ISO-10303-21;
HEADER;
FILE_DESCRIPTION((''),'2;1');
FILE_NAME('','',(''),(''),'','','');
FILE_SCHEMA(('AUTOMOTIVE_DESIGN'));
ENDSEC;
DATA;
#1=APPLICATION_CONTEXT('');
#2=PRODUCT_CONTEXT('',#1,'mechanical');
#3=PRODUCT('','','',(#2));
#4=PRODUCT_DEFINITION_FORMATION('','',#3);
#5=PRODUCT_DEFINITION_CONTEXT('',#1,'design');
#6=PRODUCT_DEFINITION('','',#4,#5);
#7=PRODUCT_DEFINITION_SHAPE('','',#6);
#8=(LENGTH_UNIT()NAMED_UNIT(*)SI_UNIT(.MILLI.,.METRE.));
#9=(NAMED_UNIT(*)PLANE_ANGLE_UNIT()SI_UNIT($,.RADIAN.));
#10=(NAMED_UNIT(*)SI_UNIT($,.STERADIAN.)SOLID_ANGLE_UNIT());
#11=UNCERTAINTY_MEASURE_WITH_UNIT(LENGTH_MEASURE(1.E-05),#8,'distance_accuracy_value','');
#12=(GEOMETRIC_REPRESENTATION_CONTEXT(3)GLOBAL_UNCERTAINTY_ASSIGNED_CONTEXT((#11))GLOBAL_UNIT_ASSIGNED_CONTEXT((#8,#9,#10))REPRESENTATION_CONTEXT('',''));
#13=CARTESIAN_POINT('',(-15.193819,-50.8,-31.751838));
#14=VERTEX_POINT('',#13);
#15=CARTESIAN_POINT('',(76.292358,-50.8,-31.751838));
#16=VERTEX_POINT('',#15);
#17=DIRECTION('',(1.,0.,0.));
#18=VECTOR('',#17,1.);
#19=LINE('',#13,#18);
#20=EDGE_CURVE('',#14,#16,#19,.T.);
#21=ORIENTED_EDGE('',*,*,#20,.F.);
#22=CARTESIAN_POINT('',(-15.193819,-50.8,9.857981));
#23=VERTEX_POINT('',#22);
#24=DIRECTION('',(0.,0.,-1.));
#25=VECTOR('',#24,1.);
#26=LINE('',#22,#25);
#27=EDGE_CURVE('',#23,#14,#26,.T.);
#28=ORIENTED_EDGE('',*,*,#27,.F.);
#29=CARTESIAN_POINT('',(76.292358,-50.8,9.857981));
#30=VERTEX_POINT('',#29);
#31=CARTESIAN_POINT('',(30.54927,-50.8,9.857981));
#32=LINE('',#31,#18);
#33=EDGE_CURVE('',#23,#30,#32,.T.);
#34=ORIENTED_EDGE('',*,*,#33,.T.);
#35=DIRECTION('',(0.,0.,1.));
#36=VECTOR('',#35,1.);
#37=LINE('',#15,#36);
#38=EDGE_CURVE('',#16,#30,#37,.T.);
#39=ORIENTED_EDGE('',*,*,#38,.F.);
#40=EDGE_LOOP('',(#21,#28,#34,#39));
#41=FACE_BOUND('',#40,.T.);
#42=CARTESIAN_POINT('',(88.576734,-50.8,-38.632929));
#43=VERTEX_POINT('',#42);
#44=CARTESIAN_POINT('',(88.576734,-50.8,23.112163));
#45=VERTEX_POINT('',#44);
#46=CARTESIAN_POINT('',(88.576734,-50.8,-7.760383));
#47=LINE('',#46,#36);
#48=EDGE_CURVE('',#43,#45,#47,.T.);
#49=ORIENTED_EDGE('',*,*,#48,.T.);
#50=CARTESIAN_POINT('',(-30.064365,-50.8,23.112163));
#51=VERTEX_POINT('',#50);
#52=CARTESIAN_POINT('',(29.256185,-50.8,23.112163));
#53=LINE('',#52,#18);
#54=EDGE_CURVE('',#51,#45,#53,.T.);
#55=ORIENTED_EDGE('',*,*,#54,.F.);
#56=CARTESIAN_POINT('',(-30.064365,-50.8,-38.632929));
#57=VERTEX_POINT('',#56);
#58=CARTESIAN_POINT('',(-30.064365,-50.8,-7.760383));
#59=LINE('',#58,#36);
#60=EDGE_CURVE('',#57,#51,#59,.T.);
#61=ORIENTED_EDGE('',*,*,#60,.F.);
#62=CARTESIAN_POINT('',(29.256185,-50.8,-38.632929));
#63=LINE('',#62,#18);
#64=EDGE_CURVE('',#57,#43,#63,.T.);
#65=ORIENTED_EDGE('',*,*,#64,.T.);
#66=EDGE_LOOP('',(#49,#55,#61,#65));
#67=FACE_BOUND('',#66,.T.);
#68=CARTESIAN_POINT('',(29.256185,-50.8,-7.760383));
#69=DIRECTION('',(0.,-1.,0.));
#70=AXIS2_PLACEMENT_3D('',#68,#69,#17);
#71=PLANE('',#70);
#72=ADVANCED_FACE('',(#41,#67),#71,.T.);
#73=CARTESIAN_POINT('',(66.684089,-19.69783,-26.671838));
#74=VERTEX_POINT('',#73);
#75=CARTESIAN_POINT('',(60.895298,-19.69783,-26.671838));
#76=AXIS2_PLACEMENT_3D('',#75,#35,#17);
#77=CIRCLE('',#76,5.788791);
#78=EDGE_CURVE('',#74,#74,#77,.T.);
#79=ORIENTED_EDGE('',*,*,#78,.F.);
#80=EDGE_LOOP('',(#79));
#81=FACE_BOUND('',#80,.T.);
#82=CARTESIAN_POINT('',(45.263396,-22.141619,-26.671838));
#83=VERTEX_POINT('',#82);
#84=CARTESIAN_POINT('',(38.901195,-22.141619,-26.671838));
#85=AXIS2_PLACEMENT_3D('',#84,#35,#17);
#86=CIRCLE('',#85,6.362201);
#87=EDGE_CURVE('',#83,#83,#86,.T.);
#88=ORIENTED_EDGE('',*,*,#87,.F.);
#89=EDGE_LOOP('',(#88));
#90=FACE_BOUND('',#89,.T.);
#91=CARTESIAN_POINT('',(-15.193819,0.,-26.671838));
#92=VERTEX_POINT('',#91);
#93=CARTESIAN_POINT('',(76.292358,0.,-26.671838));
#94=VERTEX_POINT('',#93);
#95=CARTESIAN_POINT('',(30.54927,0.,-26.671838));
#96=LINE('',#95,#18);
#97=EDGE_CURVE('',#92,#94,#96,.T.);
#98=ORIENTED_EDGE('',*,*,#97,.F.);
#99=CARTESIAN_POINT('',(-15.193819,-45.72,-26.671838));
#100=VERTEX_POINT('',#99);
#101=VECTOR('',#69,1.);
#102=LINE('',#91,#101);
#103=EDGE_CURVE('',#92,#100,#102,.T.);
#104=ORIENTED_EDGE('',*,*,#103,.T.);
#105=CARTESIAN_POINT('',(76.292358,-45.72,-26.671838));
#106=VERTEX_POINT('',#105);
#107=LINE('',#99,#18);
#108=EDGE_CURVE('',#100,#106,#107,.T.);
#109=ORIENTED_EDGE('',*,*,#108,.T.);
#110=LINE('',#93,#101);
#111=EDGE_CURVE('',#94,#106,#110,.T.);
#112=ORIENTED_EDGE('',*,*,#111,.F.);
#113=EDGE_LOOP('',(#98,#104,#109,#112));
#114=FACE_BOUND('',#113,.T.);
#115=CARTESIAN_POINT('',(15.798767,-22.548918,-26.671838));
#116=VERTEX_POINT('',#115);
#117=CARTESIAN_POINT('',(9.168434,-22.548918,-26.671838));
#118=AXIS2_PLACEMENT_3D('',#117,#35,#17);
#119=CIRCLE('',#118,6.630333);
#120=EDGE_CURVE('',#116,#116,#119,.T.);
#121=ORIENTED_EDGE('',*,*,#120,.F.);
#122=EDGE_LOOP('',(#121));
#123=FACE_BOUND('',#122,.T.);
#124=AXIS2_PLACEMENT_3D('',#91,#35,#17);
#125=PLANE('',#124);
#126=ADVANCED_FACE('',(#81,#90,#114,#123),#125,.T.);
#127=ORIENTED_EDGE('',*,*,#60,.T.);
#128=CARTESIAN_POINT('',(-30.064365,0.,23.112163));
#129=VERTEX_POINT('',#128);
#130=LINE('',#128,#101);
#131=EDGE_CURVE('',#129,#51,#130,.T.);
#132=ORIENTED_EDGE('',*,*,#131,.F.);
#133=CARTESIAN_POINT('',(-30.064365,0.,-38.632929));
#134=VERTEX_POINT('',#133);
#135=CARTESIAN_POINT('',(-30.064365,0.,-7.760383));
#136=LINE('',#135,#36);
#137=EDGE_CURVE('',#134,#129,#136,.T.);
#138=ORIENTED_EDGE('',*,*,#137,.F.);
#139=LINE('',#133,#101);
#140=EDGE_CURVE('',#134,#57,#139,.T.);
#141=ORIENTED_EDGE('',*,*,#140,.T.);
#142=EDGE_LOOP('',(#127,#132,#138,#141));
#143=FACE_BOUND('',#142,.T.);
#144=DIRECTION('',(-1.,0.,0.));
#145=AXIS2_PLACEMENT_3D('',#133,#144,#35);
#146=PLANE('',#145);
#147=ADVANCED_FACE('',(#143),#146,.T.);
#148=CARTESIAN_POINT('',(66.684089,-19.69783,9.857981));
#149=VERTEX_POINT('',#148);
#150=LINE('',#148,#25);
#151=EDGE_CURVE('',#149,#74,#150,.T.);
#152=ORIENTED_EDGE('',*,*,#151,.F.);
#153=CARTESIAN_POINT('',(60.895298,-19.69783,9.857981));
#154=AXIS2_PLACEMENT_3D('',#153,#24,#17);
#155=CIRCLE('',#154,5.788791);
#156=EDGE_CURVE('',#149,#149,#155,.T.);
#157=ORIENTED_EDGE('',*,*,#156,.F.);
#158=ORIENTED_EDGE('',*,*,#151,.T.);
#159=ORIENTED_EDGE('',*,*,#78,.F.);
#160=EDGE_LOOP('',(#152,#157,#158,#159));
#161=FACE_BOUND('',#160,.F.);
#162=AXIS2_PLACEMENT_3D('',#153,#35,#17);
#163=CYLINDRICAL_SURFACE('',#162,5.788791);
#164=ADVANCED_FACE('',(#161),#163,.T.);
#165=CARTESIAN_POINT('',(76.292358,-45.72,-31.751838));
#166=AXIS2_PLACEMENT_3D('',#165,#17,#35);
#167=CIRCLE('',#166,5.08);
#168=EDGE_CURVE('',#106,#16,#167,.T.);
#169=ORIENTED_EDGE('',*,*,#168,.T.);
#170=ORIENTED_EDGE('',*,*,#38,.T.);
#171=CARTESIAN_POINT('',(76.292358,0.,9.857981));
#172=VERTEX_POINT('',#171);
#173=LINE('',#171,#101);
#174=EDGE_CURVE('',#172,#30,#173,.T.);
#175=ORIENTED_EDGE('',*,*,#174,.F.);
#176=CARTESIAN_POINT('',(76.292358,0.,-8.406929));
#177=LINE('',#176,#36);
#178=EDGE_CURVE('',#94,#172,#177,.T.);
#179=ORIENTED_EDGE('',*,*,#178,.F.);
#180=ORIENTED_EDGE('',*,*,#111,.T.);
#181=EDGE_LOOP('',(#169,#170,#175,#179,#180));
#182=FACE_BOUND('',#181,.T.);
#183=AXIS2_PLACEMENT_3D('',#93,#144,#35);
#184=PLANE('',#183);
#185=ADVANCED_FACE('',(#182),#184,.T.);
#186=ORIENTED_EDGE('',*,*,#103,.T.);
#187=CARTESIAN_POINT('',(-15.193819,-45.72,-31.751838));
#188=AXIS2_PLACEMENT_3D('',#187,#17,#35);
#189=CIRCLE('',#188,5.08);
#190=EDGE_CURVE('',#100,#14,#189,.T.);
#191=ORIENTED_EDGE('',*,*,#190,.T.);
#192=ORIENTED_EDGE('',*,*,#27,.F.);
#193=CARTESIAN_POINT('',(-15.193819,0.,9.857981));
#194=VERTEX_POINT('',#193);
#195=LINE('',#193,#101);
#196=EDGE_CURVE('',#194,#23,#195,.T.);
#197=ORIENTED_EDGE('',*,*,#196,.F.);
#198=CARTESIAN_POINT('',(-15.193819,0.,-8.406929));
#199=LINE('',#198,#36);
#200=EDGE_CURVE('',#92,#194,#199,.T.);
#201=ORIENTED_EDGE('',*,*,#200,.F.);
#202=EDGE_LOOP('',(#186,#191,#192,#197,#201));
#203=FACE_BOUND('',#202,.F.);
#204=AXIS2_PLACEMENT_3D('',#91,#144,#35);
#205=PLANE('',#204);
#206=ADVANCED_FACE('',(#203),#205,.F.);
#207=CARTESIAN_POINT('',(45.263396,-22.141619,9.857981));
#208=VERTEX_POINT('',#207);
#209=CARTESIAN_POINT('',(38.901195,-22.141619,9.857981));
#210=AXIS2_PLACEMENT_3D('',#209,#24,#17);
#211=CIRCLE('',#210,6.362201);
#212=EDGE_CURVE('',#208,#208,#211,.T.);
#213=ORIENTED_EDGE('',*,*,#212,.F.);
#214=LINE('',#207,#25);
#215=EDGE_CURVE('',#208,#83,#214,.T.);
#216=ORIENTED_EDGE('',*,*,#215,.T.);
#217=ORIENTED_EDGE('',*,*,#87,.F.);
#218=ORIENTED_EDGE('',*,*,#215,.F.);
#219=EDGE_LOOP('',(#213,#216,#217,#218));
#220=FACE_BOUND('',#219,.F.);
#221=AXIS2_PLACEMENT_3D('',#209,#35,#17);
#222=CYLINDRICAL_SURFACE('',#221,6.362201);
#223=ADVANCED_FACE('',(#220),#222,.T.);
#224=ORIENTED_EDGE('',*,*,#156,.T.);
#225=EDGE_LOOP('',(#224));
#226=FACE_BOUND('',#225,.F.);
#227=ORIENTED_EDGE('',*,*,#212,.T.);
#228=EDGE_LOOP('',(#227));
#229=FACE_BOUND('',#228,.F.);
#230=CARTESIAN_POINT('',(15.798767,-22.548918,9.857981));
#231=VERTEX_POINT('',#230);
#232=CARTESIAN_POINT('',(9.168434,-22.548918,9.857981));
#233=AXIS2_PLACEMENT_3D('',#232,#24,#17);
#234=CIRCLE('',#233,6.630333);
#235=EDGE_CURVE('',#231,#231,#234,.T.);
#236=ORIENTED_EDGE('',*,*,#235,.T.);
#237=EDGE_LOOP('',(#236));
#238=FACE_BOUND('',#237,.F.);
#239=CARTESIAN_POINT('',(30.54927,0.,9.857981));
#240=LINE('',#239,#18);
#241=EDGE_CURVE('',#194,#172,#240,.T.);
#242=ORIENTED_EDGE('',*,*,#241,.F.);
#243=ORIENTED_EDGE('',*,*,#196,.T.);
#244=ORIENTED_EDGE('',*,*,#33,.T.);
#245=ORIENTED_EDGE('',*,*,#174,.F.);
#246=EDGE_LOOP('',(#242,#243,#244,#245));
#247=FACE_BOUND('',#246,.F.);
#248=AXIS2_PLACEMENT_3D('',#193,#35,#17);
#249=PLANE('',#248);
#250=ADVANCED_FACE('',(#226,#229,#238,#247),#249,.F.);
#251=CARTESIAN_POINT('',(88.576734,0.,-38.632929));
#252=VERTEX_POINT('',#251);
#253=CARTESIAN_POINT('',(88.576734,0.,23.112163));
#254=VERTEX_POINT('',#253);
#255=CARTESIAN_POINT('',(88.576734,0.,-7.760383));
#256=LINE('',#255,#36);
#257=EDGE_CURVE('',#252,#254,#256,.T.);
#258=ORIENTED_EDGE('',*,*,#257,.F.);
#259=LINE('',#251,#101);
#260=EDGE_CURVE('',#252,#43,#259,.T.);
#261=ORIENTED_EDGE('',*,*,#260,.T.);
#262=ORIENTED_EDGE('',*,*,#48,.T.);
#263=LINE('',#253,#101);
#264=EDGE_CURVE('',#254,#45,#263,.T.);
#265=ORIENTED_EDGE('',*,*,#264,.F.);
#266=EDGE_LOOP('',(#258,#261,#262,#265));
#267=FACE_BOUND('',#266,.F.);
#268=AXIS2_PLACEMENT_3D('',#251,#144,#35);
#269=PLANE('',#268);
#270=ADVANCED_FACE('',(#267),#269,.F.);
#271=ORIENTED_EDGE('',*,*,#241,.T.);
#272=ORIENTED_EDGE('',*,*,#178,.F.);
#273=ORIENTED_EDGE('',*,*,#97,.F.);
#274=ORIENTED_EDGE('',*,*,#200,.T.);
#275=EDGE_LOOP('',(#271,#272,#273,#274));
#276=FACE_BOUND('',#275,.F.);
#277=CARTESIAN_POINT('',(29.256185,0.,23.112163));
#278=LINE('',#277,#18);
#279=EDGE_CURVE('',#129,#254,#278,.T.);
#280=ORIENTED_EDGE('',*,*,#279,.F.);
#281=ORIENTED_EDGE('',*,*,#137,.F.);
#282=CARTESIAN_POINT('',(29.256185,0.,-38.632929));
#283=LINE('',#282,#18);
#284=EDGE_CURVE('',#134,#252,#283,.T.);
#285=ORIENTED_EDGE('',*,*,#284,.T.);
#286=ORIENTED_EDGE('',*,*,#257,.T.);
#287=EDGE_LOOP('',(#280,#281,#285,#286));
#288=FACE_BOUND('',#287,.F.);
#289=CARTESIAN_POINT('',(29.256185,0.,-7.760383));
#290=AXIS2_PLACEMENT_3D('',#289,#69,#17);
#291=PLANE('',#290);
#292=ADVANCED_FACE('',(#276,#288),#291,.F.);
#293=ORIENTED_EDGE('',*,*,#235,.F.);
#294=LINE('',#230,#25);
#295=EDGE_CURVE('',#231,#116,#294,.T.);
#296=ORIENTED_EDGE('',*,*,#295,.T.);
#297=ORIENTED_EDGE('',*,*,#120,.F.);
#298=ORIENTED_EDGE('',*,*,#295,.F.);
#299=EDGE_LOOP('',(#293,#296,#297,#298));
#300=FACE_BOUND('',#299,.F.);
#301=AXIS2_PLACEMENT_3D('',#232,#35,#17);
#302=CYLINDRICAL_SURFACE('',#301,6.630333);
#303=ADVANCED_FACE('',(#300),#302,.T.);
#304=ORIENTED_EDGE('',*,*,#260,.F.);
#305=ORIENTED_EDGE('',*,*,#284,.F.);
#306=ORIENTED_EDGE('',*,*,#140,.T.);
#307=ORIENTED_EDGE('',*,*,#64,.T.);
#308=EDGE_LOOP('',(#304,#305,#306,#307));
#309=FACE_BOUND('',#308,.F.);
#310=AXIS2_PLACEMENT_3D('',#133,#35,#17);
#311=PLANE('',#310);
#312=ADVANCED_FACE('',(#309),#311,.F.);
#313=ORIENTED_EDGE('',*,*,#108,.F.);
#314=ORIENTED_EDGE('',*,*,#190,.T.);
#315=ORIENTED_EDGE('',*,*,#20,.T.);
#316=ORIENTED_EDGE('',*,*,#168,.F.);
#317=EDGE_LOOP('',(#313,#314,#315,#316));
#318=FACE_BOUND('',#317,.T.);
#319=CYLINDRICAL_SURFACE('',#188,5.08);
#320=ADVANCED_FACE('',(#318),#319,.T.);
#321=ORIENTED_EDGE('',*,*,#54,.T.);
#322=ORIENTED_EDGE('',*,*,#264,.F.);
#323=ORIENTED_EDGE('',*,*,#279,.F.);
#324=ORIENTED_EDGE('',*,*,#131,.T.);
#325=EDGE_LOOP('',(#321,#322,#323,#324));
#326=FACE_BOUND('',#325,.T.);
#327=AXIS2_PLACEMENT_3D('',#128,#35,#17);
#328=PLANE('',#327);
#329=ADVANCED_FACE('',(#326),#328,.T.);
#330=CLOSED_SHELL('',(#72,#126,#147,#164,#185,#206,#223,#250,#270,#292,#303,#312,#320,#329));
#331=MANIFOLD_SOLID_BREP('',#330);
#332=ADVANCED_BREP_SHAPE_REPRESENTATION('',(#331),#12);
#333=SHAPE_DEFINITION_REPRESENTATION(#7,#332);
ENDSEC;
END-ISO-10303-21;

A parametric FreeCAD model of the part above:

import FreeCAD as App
import Part
import Sketcher

V = App.Vector
Q = App.Units.Quantity


def edges_at(feature, points):
    """Names of the edges that pass closest to the given points."""
    edges = feature.Shape.Edges
    near = lambda p: min(range(len(edges)), key=lambda i: edges[i].distToShape(Part.Vertex(*p))[0])
    return sorted({f"Edge{near(p) + 1}" for p in points})

doc = App.newDocument("Part")
body = doc.addObject("PartDesign::Body", "Body")

# Sketch on XZ plane
sketch1 = body.newObject("Sketcher::SketchObject", "Sketch")
sketch1.AttachmentSupport = (doc.getObject("XZ_Plane"), [""])
sketch1.MapMode = "FlatFace"
sketch1.addGeometry([
    Part.LineSegment(V(-30, 23, 0), V(-30, -39, 0)),  # 0
    Part.LineSegment(V(-30, -39, 0), V(89, -39, 0)),  # 1
    Part.LineSegment(V(89, -39, 0), V(89, 23, 0)),  # 2
    Part.LineSegment(V(89, 23, 0), V(-30, 23, 0)),  # 3
    Part.LineSegment(V(76, -27, 0), V(-15, -27, 0)),  # 4
    Part.LineSegment(V(-15, -27, 0), V(-15, 10, 0)),  # 5
    Part.LineSegment(V(-15, 10, 0), V(76, 10, 0)),  # 6
    Part.LineSegment(V(76, 10, 0), V(76, -27, 0)),  # 7
], False)
sketch1.addConstraint([
    Sketcher.Constraint("Coincident", 0, 2, 1, 1),
    Sketcher.Constraint("Coincident", 1, 2, 2, 1),
    Sketcher.Constraint("Coincident", 2, 2, 3, 1),
    Sketcher.Constraint("Coincident", 3, 2, 0, 1),
    Sketcher.Constraint("Coincident", 4, 2, 5, 1),
    Sketcher.Constraint("Coincident", 5, 2, 6, 1),
    Sketcher.Constraint("Coincident", 6, 2, 7, 1),
    Sketcher.Constraint("Coincident", 7, 2, 4, 1),
    Sketcher.Constraint("Vertical", 0),
    Sketcher.Constraint("Horizontal", 1),
    Sketcher.Constraint("Vertical", 2),
    Sketcher.Constraint("Horizontal", 3),
    Sketcher.Constraint("Horizontal", 4),
    Sketcher.Constraint("Vertical", 5),
    Sketcher.Constraint("Horizontal", 6),
    Sketcher.Constraint("Vertical", 7),
    Sketcher.Constraint("DistanceY", 4, 2, 3, 2, Q("1.96 in")),
    Sketcher.Constraint("DistanceX", 1, 1, 1, 2, Q("118.641099 mm")),
    Sketcher.Constraint("DistanceY", 5, 1, 5, 2, Q("36.529819 mm")),
    Sketcher.Constraint("DistanceX", 4, 2, 4, 1, Q("91.486177 mm")),
    Sketcher.Constraint("DistanceY", 0, 2, 0, 1, Q("61.745092 mm")),
    Sketcher.Constraint("DistanceY", 0, 2, -1, 1, Q("38.632929 mm")),
    Sketcher.Constraint("DistanceX", 4, 2, -1, 1, Q("15.193819 mm")),
    Sketcher.Constraint("DistanceX", 0, 2, -1, 1, Q("30.064365 mm")),
])
pad1 = body.newObject("PartDesign::Pad", "Pad")
pad1.Profile = sketch1
pad1.Length = Q("2 in")

# Sketch on XY plane
sketch2 = body.newObject("Sketcher::SketchObject", "Sketch001")
sketch2.AttachmentSupport = (doc.getObject("XY_Plane"), [""])
sketch2.MapMode = "FlatFace"
sketch2.AttachmentOffset = App.Placement(V(0, 0, 9.857981), App.Rotation())
sketch2.addGeometry([
    Part.Circle(V(39, -22, 0), V(0, 0, 1), 6),
    Part.Circle(V(61, -20, 0), V(0, 0, 1), 6),
    Part.Circle(V(9, -23, 0), V(0, 0, 1), 7),
], False)
sketch2.addConstraint([
    Sketcher.Constraint("Diameter", 0, Q("12.724402 mm")),
    Sketcher.Constraint("Diameter", 1, Q("11.577582 mm")),
    Sketcher.Constraint("Diameter", 2, Q("13.260667 mm")),
    Sketcher.Constraint("DistanceY", 2, 3, 0, 3, Q("0.407299 mm")),
    Sketcher.Constraint("DistanceY", 0, 3, -1, 1, Q("22.141619 mm")),
    Sketcher.Constraint("DistanceY", 1, 3, -1, 1, Q("19.69783 mm")),
    Sketcher.Constraint("DistanceX", 2, 3, 0, 3, Q("29.732761 mm")),
    Sketcher.Constraint("DistanceX", -1, 1, 0, 3, Q("38.901195 mm")),
    Sketcher.Constraint("DistanceX", -1, 1, 1, 3, Q("60.895298 mm")),
])
pad2 = body.newObject("PartDesign::Pad", "Pad001")
pad2.Profile = sketch2
pad2.Length = Q("1.9 in")
pad2.Reversed = True
doc.recompute()

fillet = body.newObject("PartDesign::Fillet", "Fillet")
fillet.Base = (pad2, edges_at(pad2, [(30.549, -50.8, -26.672)]))
fillet.Radius = Q("0.2 in")

doc.recompute()
